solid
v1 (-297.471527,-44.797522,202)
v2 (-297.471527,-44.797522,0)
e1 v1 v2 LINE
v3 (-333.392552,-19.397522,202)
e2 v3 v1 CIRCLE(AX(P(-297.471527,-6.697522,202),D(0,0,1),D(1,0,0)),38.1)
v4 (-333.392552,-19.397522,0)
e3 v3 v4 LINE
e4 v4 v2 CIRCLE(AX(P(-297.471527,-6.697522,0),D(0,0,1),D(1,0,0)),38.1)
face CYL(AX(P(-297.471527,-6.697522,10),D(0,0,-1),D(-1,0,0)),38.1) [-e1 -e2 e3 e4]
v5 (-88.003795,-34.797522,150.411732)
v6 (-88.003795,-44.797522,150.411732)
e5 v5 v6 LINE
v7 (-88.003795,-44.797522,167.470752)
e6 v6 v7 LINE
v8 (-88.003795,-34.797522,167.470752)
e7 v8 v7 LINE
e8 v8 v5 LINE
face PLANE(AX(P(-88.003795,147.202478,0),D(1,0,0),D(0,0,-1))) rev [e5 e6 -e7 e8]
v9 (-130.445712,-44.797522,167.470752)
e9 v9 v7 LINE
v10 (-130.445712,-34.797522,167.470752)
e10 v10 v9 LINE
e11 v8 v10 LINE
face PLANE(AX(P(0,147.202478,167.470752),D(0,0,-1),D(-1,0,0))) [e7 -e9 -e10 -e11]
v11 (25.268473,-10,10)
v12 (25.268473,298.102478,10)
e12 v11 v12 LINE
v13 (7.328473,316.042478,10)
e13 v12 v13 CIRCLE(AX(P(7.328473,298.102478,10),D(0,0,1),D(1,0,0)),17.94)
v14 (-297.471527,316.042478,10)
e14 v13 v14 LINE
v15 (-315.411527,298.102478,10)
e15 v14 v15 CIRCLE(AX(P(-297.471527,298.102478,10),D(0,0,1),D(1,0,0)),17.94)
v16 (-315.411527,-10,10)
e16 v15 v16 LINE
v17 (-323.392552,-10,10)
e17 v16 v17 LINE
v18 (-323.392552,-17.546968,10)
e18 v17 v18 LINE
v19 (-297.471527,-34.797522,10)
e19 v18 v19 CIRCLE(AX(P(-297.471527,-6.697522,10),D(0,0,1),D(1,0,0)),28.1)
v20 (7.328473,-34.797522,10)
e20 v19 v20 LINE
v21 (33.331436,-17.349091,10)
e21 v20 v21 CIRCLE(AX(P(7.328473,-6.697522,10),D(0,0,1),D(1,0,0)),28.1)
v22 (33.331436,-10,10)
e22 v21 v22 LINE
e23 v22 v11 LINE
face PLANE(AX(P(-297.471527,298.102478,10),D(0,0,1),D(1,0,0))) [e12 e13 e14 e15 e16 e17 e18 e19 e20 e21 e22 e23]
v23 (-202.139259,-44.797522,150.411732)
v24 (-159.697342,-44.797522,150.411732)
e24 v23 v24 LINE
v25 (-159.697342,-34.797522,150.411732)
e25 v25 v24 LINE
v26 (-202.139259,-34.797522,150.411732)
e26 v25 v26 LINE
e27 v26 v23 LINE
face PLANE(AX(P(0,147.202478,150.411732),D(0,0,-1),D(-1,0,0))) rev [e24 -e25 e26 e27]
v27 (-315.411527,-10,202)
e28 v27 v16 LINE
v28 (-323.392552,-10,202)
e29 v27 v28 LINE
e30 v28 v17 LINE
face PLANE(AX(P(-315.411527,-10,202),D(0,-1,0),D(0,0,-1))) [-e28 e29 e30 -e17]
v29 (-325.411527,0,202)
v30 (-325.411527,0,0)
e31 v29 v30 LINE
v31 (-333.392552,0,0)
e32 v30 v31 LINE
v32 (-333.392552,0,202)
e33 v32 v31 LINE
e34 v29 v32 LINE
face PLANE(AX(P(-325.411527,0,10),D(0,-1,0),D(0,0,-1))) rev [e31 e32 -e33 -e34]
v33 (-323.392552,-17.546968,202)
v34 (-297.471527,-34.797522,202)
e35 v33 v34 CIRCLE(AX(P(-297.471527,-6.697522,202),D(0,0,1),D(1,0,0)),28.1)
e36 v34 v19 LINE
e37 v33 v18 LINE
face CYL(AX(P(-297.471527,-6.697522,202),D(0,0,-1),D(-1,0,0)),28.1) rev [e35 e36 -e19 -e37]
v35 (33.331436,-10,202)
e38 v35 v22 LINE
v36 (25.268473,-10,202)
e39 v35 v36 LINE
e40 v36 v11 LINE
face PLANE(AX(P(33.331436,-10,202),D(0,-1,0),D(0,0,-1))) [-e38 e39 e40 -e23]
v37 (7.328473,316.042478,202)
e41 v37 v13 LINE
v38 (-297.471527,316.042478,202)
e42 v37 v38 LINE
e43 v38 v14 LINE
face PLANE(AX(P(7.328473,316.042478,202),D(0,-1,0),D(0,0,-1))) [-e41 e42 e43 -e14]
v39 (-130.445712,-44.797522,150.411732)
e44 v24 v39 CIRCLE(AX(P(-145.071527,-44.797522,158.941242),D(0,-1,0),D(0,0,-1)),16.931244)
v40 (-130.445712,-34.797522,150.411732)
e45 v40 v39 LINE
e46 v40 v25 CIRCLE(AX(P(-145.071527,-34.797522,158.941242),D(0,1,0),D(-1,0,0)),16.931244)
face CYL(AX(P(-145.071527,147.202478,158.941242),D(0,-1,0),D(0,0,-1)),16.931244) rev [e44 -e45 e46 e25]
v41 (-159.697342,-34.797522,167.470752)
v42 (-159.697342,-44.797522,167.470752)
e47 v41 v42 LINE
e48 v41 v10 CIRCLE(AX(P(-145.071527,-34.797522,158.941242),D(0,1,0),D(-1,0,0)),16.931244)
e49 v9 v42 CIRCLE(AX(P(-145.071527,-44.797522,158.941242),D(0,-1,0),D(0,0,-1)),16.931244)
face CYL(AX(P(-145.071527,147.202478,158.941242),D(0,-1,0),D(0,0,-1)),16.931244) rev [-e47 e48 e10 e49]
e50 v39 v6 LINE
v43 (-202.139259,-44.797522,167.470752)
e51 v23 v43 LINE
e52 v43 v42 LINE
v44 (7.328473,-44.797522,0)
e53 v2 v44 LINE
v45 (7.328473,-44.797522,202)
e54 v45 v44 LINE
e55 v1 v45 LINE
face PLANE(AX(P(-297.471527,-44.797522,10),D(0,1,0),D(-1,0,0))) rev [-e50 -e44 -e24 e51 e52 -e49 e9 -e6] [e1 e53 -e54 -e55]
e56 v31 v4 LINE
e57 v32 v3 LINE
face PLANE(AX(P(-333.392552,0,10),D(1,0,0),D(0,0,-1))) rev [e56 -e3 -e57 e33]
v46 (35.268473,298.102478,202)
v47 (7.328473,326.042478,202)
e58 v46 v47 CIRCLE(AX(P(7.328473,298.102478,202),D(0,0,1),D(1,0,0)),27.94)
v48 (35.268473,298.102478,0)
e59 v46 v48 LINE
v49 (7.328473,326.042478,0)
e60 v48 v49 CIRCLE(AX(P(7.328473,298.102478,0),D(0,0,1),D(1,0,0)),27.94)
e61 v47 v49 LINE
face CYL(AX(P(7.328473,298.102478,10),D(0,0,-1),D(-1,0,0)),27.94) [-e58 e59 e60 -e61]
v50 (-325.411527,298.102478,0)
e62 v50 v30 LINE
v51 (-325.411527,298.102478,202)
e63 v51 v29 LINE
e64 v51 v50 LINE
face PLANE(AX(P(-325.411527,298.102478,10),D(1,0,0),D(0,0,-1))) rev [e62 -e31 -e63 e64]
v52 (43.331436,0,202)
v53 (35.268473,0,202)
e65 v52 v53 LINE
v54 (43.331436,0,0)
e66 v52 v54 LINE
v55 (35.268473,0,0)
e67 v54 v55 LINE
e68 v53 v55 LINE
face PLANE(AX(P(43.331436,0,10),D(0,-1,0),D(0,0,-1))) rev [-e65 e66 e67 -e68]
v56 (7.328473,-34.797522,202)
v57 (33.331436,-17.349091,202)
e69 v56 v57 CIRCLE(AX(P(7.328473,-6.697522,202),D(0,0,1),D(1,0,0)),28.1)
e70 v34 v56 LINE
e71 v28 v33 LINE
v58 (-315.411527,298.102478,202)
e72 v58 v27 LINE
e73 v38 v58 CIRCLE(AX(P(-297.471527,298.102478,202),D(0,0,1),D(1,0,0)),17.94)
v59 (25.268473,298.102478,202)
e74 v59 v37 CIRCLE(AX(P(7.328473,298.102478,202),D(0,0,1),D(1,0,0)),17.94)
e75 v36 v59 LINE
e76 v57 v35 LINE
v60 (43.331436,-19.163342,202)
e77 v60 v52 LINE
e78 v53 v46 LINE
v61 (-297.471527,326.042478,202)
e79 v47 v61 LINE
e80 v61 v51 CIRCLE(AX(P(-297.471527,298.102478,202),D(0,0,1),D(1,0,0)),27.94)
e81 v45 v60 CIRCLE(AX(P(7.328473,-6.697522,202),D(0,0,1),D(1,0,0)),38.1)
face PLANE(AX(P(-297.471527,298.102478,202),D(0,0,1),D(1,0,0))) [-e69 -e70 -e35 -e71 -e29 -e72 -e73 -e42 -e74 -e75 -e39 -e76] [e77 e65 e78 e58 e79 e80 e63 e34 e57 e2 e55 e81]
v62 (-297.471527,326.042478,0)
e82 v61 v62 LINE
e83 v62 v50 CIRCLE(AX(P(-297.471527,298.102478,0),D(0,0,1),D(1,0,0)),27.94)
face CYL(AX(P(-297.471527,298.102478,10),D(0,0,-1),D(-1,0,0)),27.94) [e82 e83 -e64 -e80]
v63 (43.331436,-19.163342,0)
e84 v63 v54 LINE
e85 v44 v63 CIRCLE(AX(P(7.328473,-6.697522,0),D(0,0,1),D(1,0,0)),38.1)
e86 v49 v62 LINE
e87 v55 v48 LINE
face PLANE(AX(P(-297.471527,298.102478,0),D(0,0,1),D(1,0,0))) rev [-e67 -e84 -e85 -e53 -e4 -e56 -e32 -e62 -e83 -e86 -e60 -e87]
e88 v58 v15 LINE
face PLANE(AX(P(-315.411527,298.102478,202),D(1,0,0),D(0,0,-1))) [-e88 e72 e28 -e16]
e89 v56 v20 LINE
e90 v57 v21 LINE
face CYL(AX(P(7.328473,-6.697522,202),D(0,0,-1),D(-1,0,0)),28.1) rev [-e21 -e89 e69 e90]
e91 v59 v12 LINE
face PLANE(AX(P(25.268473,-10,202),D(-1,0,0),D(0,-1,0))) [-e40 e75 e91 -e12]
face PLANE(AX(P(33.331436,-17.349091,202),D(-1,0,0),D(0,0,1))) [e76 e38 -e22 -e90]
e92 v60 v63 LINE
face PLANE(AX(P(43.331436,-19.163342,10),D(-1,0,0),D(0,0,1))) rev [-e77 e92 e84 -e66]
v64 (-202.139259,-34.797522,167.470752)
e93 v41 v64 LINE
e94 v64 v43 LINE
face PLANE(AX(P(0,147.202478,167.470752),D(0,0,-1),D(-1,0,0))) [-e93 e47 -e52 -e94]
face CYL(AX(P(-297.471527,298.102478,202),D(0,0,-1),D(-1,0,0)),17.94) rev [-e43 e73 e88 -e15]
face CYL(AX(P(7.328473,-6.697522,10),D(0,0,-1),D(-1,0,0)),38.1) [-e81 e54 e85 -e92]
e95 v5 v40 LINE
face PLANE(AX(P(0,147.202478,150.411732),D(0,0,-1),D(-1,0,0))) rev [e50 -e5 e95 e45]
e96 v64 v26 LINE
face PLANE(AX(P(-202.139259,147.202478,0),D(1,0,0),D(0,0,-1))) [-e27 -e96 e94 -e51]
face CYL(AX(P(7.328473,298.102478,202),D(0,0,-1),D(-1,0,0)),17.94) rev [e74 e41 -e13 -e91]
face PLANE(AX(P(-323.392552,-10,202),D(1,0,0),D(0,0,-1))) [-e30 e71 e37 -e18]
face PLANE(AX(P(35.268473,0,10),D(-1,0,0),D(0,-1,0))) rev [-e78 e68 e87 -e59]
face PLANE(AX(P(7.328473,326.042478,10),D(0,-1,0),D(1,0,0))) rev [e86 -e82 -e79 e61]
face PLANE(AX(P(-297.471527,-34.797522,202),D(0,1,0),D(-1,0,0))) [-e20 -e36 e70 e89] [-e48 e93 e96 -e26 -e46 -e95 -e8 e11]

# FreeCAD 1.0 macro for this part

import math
import FreeCAD as App
import Part
import Sketcher
from FreeCAD import Vector

doc = App.newDocument("Part")
body = doc.addObject("PartDesign::Body", "Body")

# Sketch on XY plane
sketch1 = body.newObject("Sketcher::SketchObject", "Sketch")
sketch1.AttachmentSupport = (doc.getObject("XY_Plane"), [""])
sketch1.MapMode = "FlatFace"
sketch1.addGeometry([
    Part.LineSegment(Vector(-325.411527, 298.102478, 0), Vector(-325.411527, 0, 0)),  # 0
    Part.LineSegment(Vector(-325.411527, 0, 0), Vector(-333.392552, 0, 0)),  # 1
    Part.LineSegment(Vector(-333.392552, 0, 0), Vector(-333.392552, -19.397522, 0)),  # 2
    Part.ArcOfCircle(Part.Circle(Vector(-297.471527, -6.697522, 0), Vector(0, 0, 1), 38.1), math.radians(-160.528779), math.radians(-90)),  # 3
    Part.LineSegment(Vector(-297.471527, -44.797522, 0), Vector(7.328473, -44.797522, 0)),  # 4
    Part.ArcOfCircle(Part.Circle(Vector(7.328473, -6.697522, 0), Vector(0, 0, 1), 38.1), math.radians(-90), math.radians(-19.098119)),  # 5
    Part.LineSegment(Vector(43.331436, -19.163342, 0), Vector(43.331436, 0, 0)),  # 6
    Part.LineSegment(Vector(43.331436, 0, 0), Vector(35.268473, 0, 0)),  # 7
    Part.LineSegment(Vector(35.268473, 0, 0), Vector(35.268473, 298.102478, 0)),  # 8
    Part.ArcOfCircle(Part.Circle(Vector(7.328473, 298.102478, 0), Vector(0, 0, 1), 27.94), math.radians(0), math.radians(90)),  # 9
    Part.LineSegment(Vector(7.328473, 326.042478, 0), Vector(-297.471527, 326.042478, 0)),  # 10
    Part.ArcOfCircle(Part.Circle(Vector(-297.471527, 298.102478, 0), Vector(0, 0, 1), 27.94), math.radians(90), math.radians(180)),  # 11
], False)
sketch1.addConstraint([
    Sketcher.Constraint("Coincident", 0, 2, 1, 1),
    Sketcher.Constraint("Coincident", 1, 2, 2, 1),
    Sketcher.Constraint("Coincident", 2, 2, 3, 1),
    Sketcher.Constraint("Tangent", 3, 2, 4, 1),
    Sketcher.Constraint("Tangent", 4, 2, 5, 1),
    Sketcher.Constraint("Coincident", 5, 2, 6, 1),
    Sketcher.Constraint("Coincident", 6, 2, 7, 1),
    Sketcher.Constraint("Coincident", 7, 2, 8, 1),
    Sketcher.Constraint("Tangent", 8, 2, 9, 1),
    Sketcher.Constraint("Tangent", 9, 2, 10, 1),
    Sketcher.Constraint("Tangent", 10, 2, 11, 1),
    Sketcher.Constraint("Tangent", 11, 2, 0, 1),
    Sketcher.Constraint("Vertical", 0),
    Sketcher.Constraint("Horizontal", 1),
    Sketcher.Constraint("Vertical", 2),
    Sketcher.Constraint("Horizontal", 4),
    Sketcher.Constraint("Vertical", 6),
    Sketcher.Constraint("Horizontal", 7),
    Sketcher.Constraint("Vertical", 8),
    Sketcher.Constraint("Horizontal", 10),
    Sketcher.Constraint("Equal", 3, 5),
    Sketcher.Constraint("Equal", 9, 11),
    Sketcher.Constraint("PointOnObject", 0, 2, -1),
    Sketcher.Constraint("PointOnObject", 6, 2, -1),
    Sketcher.Constraint("Vertical", 5, 3, 9, 3),
    Sketcher.Constraint("Vertical", 3, 3, 11, 3),
    Sketcher.Constraint("Radius", 3, 38.1),
    Sketcher.Constraint("Radius", 9, 27.94),
    Sketcher.Constraint("DistanceX", 4, 1, 4, 2, 304.8),
    Sketcher.Constraint("DistanceY", 5, 3, 9, 3, 304.8),
    Sketcher.Constraint("DistanceY", 2, 2, 3, 3, 12.7),
    Sketcher.Constraint("DistanceY", 0, 2, 0, 1, 298.102478),
    Sketcher.Constraint("DistanceY", 6, 1, 6, 2, 19.163342),
    Sketcher.Constraint("DistanceX", 1, 2, -1, 1, 333.392552),
])
pad1 = body.newObject("PartDesign::Pad", "Pad")
pad1.Profile = sketch1
pad1.Length = 10

# Sketch on XY plane
sketch2 = body.newObject("Sketcher::SketchObject", "Sketch001")
sketch2.AttachmentSupport = (doc.getObject("XY_Plane"), [""])
sketch2.MapMode = "FlatFace"
sketch2.AttachmentOffset = App.Placement(Vector(0, 0, 10), App.Rotation())
sketch2.addGeometry([
    Part.LineSegment(Vector(-325.411527, 298.102478, 0), Vector(-325.411527, 0, 0)),  # 0
    Part.LineSegment(Vector(-325.411527, 0, 0), Vector(-333.392552, 0, 0)),  # 1
    Part.LineSegment(Vector(-333.392552, 0, 0), Vector(-333.392552, -19.397522, 0)),  # 2
    Part.ArcOfCircle(Part.Circle(Vector(-297.471527, -6.697522, 0), Vector(0, 0, 1), 38.1), math.radians(-160.528779), math.radians(-90)),  # 3
    Part.LineSegment(Vector(-297.471527, -44.797522, 0), Vector(7.328473, -44.797522, 0)),  # 4
    Part.ArcOfCircle(Part.Circle(Vector(7.328473, -6.697522, 0), Vector(0, 0, 1), 38.1), math.radians(-90), math.radians(-19.098119)),  # 5
    Part.LineSegment(Vector(43.331436, -19.163342, 0), Vector(43.331436, 0, 0)),  # 6
    Part.LineSegment(Vector(43.331436, 0, 0), Vector(35.268473, 0, 0)),  # 7
    Part.LineSegment(Vector(35.268473, 0, 0), Vector(35.268473, 298.102478, 0)),  # 8
    Part.ArcOfCircle(Part.Circle(Vector(7.328473, 298.102478, 0), Vector(0, 0, 1), 27.94), math.radians(0), math.radians(90)),  # 9
    Part.LineSegment(Vector(7.328473, 326.042478, 0), Vector(-297.471527, 326.042478, 0)),  # 10
    Part.ArcOfCircle(Part.Circle(Vector(-297.471527, 298.102478, 0), Vector(0, 0, 1), 27.94), math.radians(90), math.radians(180)),  # 11
    Part.LineSegment(Vector(-315.411527, -10, 0), Vector(-315.411527, 298.102478, 0)),  # 12
    Part.ArcOfCircle(Part.Circle(Vector(-297.471527, 298.102478, 0), Vector(0, 0, 1), 17.94), math.radians(90), math.radians(180)),  # 13
    Part.LineSegment(Vector(-297.471527, 316.042478, 0), Vector(7.328473, 316.042478, 0)),  # 14
    Part.ArcOfCircle(Part.Circle(Vector(7.328473, 298.102478, 0), Vector(0, 0, 1), 17.94), math.radians(0), math.radians(90)),  # 15
    Part.LineSegment(Vector(25.268473, 298.102478, 0), Vector(25.268473, -10, 0)),  # 16
    Part.LineSegment(Vector(25.268473, -10, 0), Vector(33.331436, -10, 0)),  # 17
    Part.LineSegment(Vector(33.331436, -10, 0), Vector(33.331436, -17.349091, 0)),  # 18
    Part.ArcOfCircle(Part.Circle(Vector(7.328473, -6.697522, 0), Vector(0, 0, 1), 28.1), math.radians(-90), math.radians(-22.275431)),  # 19
    Part.LineSegment(Vector(7.328473, -34.797522, 0), Vector(-297.471527, -34.797522, 0)),  # 20
    Part.ArcOfCircle(Part.Circle(Vector(-297.471527, -6.697522, 0), Vector(0, 0, 1), 28.1), math.radians(-157.287873), math.radians(-90)),  # 21
    Part.LineSegment(Vector(-323.392552, -17.546968, 0), Vector(-323.392552, -10, 0)),  # 22
    Part.LineSegment(Vector(-323.392552, -10, 0), Vector(-315.411527, -10, 0)),  # 23
], False)
sketch2.addConstraint([
    Sketcher.Constraint("Coincident", 0, 2, 1, 1),
    Sketcher.Constraint("Coincident", 1, 2, 2, 1),
    Sketcher.Constraint("Coincident", 2, 2, 3, 1),
    Sketcher.Constraint("Tangent", 3, 2, 4, 1),
    Sketcher.Constraint("Tangent", 4, 2, 5, 1),
    Sketcher.Constraint("Coincident", 5, 2, 6, 1),
    Sketcher.Constraint("Coincident", 6, 2, 7, 1),
    Sketcher.Constraint("Coincident", 7, 2, 8, 1),
    Sketcher.Constraint("Tangent", 8, 2, 9, 1),
    Sketcher.Constraint("Tangent", 9, 2, 10, 1),
    Sketcher.Constraint("Tangent", 10, 2, 11, 1),
    Sketcher.Constraint("Tangent", 11, 2, 0, 1),
    Sketcher.Constraint("Tangent", 12, 2, 13, 2),
    Sketcher.Constraint("Tangent", 13, 1, 14, 1),
    Sketcher.Constraint("Tangent", 14, 2, 15, 2),
    Sketcher.Constraint("Tangent", 15, 1, 16, 1),
    Sketcher.Constraint("Coincident", 16, 2, 17, 1),
    Sketcher.Constraint("Coincident", 17, 2, 18, 1),
    Sketcher.Constraint("Coincident", 18, 2, 19, 2),
    Sketcher.Constraint("Tangent", 19, 1, 20, 1),
    Sketcher.Constraint("Tangent", 20, 2, 21, 2),
    Sketcher.Constraint("Coincident", 21, 1, 22, 1),
    Sketcher.Constraint("Coincident", 22, 2, 23, 1),
    Sketcher.Constraint("Coincident", 23, 2, 12, 1),
    Sketcher.Constraint("Vertical", 0),
    Sketcher.Constraint("Horizontal", 1),
    Sketcher.Constraint("Vertical", 2),
    Sketcher.Constraint("Horizontal", 4),
    Sketcher.Constraint("Vertical", 6),
    Sketcher.Constraint("Horizontal", 7),
    Sketcher.Constraint("Vertical", 8),
    Sketcher.Constraint("Horizontal", 10),
    Sketcher.Constraint("Vertical", 12),
    Sketcher.Constraint("Horizontal", 14),
    Sketcher.Constraint("Vertical", 16),
    Sketcher.Constraint("Horizontal", 17),
    Sketcher.Constraint("Vertical", 18),
    Sketcher.Constraint("Horizontal", 20),
    Sketcher.Constraint("Vertical", 22),
    Sketcher.Constraint("Horizontal", 23),
    Sketcher.Constraint("Coincident", 13, 3, 11, 3),
    Sketcher.Constraint("Coincident", 15, 3, 9, 3),
    Sketcher.Constraint("Coincident", 19, 3, 5, 3),
    Sketcher.Constraint("Coincident", 21, 3, 3, 3),
    Sketcher.Constraint("Equal", 3, 5),
    Sketcher.Constraint("Equal", 9, 11),
    Sketcher.Constraint("PointOnObject", 0, 2, -1),
    Sketcher.Constraint("PointOnObject", 6, 2, -1),
    Sketcher.Constraint("Horizontal", 17, 2, 22, 2),
    Sketcher.Constraint("Vertical", 5, 3, 9, 3),
    Sketcher.Constraint("Vertical", 3, 3, 11, 3),
    Sketcher.Constraint("Equal", 7, 17),
    Sketcher.Constraint("Equal", 1, 23),
    Sketcher.Constraint("Radius", 3, 38.1),
    Sketcher.Constraint("Radius", 19, 28.1),
    Sketcher.Constraint("Radius", 9, 27.94),
    Sketcher.Constraint("Radius", 13, 17.94),
    Sketcher.Constraint("DistanceX", 4, 1, 4, 2, 304.8),
    Sketcher.Constraint("DistanceY", 16, 2, -1, 1, 10.0),
    Sketcher.Constraint("DistanceY", 5, 3, 9, 3, 304.8),
    Sketcher.Constraint("DistanceY", 2, 2, 21, 3, 12.7),
    Sketcher.Constraint("DistanceY", 0, 2, 0, 1, 298.102478),
    Sketcher.Constraint("DistanceY", 6, 1, 6, 2, 19.163342),
    Sketcher.Constraint("DistanceX", 1, 2, -1, 1, 333.392552),
])
pad2 = body.newObject("PartDesign::Pad", "Pad001")
pad2.Profile = sketch2
pad2.Length = 192

# Sketch on XZ plane
sketch3 = body.newObject("Sketcher::SketchObject", "Sketch002")
sketch3.AttachmentSupport = (doc.getObject("XZ_Plane"), [""])
sketch3.MapMode = "FlatFace"
sketch3.AttachmentOffset = App.Placement(Vector(0, 0, 44.797522), App.Rotation())
sketch3.addGeometry([
    Part.ArcOfCircle(Part.Circle(Vector(-145.071527, 158.941242, 0), Vector(0, 0, 1), 16.931244), math.radians(30.24996), math.radians(149.75004)),  # 0
    Part.LineSegment(Vector(-159.697342, 167.470752, 0), Vector(-202.139259, 167.470752, 0)),  # 1
    Part.LineSegment(Vector(-202.139259, 167.470752, 0), Vector(-202.139259, 150.411732, 0)),  # 2
    Part.LineSegment(Vector(-202.139259, 150.411732, 0), Vector(-159.697342, 150.411732, 0)),  # 3
    Part.ArcOfCircle(Part.Circle(Vector(-145.071527, 158.941242, 0), Vector(0, 0, 1), 16.931244), math.radians(-149.75004), math.radians(-30.24996)),  # 4
    Part.LineSegment(Vector(-130.445712, 150.411732, 0), Vector(-88.003795, 150.411732, 0)),  # 5
    Part.LineSegment(Vector(-88.003795, 150.411732, 0), Vector(-88.003795, 167.470752, 0)),  # 6
    Part.LineSegment(Vector(-88.003795, 167.470752, 0), Vector(-130.445712, 167.470752, 0)),  # 7
], False)
sketch3.addConstraint([
    Sketcher.Constraint("Coincident", 0, 2, 1, 1),
    Sketcher.Constraint("Coincident", 1, 2, 2, 1),
    Sketcher.Constraint("Coincident", 2, 2, 3, 1),
    Sketcher.Constraint("Coincident", 3, 2, 4, 1),
    Sketcher.Constraint("Coincident", 4, 2, 5, 1),
    Sketcher.Constraint("Coincident", 5, 2, 6, 1),
    Sketcher.Constraint("Coincident", 6, 2, 7, 1),
    Sketcher.Constraint("Coincident", 7, 2, 0, 1),
    Sketcher.Constraint("Horizontal", 1),
    Sketcher.Constraint("Vertical", 2),
    Sketcher.Constraint("Horizontal", 3),
    Sketcher.Constraint("Horizontal", 5),
    Sketcher.Constraint("Vertical", 6),
    Sketcher.Constraint("Horizontal", 7),
    Sketcher.Constraint("Coincident", 4, 3, 0, 3),
    Sketcher.Constraint("Equal", 0, 4),
    Sketcher.Constraint("Horizontal", 3, 2, 4, 2),
    Sketcher.Constraint("Horizontal", 1, 2, 6, 2),
    Sketcher.Constraint("Vertical", 0, 2, 3, 2),
    Sketcher.Constraint("Equal", 3, 5),
    Sketcher.Constraint("Radius", 0, 16.931244),
    Sketcher.Constraint("DistanceY", 2, 2, 2, 1, 17.05902),
    Sketcher.Constraint("DistanceX", 1, 2, 1, 1, 42.441916),
    Sketcher.Constraint("DistanceX", 1, 2, -1, 1, 202.139259),
    Sketcher.Constraint("DistanceY", -1, 1, 0, 3, 158.941242),
])
pocket1 = body.newObject("PartDesign::Pocket", "Pocket")
pocket1.Profile = sketch3
pocket1.Length = 192

doc.recompute()
